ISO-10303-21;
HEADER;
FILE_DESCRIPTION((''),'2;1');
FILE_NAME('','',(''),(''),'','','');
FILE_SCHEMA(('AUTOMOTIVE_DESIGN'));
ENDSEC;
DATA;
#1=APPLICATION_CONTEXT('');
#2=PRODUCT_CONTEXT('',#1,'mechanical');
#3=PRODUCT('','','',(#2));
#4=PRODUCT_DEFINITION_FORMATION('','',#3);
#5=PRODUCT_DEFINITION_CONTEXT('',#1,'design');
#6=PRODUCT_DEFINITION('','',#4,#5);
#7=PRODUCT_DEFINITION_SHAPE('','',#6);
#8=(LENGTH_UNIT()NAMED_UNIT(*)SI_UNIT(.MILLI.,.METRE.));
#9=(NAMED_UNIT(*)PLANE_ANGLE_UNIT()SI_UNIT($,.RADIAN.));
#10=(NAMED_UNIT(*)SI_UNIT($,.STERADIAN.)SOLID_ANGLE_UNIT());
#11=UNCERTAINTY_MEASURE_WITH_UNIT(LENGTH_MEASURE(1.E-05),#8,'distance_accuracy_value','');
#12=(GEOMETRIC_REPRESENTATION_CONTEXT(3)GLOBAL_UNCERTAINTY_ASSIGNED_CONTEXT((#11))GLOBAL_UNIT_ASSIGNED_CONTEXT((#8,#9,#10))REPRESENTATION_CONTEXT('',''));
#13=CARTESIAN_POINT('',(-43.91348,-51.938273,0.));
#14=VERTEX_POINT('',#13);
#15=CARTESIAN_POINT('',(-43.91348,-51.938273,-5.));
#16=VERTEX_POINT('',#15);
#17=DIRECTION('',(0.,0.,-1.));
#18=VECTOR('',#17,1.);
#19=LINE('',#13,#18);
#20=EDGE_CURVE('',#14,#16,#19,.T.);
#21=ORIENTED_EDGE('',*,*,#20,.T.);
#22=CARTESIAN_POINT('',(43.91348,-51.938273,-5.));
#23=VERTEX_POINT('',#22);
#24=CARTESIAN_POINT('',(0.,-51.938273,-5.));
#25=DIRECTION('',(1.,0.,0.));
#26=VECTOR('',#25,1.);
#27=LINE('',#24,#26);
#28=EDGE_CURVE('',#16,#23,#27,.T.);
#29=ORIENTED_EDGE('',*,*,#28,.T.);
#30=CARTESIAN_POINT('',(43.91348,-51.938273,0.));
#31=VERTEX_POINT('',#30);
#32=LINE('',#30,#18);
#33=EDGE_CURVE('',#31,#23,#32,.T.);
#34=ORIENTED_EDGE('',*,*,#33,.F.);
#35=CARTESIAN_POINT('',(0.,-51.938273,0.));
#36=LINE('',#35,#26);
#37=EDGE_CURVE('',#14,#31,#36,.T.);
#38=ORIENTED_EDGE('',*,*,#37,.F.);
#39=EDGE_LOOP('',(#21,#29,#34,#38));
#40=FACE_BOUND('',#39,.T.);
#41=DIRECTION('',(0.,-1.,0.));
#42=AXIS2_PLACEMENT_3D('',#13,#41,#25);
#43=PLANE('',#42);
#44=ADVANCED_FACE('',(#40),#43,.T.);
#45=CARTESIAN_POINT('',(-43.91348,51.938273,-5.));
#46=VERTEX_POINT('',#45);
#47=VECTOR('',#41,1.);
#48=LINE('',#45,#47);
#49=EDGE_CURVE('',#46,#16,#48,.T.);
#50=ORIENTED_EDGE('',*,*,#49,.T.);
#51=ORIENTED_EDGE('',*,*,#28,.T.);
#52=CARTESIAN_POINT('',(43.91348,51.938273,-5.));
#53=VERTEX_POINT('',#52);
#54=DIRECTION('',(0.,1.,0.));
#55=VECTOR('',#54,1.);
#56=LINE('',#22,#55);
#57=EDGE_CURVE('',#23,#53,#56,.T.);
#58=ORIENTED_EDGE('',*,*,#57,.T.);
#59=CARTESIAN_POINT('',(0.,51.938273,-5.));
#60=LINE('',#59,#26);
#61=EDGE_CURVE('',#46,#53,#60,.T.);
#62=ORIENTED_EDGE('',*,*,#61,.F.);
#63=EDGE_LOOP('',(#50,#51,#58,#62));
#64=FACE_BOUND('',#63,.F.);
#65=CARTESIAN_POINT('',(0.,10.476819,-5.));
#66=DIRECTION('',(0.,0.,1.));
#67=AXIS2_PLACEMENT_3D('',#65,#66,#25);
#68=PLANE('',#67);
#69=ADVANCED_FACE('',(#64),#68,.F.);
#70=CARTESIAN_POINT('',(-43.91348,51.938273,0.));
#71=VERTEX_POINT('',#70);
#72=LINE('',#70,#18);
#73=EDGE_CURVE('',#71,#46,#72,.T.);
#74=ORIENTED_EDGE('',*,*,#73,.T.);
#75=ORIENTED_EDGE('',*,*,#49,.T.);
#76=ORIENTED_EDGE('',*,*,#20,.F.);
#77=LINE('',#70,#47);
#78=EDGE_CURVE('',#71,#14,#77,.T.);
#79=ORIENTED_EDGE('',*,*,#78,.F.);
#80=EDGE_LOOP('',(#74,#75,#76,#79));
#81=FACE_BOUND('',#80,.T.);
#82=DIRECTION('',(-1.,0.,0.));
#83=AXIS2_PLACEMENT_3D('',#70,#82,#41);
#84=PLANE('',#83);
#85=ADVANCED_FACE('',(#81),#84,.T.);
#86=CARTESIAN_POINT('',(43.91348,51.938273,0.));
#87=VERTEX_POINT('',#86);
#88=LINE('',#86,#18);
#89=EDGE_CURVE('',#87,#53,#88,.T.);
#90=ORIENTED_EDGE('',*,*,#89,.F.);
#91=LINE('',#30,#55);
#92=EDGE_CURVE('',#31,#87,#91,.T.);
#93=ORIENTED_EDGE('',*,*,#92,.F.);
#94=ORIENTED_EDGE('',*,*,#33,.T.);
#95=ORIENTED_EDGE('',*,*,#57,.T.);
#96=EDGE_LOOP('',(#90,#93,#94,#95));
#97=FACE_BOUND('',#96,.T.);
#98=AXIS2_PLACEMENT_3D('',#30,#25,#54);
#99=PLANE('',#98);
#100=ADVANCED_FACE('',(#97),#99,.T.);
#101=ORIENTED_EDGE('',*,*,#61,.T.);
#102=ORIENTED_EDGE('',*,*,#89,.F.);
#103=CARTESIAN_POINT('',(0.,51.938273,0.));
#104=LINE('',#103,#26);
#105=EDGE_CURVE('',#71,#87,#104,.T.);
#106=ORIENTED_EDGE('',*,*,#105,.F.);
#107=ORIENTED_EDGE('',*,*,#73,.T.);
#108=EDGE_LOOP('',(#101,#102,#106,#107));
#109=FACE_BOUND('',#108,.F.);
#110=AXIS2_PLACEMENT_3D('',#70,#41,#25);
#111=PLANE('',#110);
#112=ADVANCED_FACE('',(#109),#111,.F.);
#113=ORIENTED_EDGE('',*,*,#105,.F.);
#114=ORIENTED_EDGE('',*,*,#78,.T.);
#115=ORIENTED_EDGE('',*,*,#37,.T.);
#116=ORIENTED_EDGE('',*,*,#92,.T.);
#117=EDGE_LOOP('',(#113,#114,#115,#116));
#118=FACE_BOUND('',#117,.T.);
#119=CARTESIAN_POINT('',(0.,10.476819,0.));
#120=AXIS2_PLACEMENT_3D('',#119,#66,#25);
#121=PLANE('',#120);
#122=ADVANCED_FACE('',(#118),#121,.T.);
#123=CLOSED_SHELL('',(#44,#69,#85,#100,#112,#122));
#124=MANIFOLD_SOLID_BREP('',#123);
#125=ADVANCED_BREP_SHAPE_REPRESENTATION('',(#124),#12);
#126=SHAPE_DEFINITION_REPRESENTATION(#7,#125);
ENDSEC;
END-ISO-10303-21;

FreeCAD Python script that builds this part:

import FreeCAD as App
import Part
import Sketcher
from FreeCAD import Vector
Q = App.Units.Quantity


def add_polygon(sketch, points):
    """Adds a closed chain of lines whose ends are joined by coincident constraints."""
    first, n = sketch.GeometryCount, len(points)
    for a, b in zip(points, points[1:] + points[:1]):
        sketch.addGeometry(Part.LineSegment(App.Vector(*a, 0), App.Vector(*b, 0)), False)
    for i in range(n):
        sketch.addConstraint(Sketcher.Constraint("Coincident", first + i, 2, first + (i + 1) % n, 1))

doc = App.newDocument("Part")
body = doc.addObject("PartDesign::Body", "Body")

# Sketch on XY plane
sketch1 = body.newObject("Sketcher::SketchObject", "Sketch")
sketch1.AttachmentSupport = (doc.getObject("XY_Plane"), [""])
sketch1.MapMode = "FlatFace"
add_polygon(sketch1, [(-43.91348, 51.938273), (-43.91348, -51.938273), (43.91348, -51.938273), (43.91348, 51.938273)])  # lines 0-3
sketch1.addConstraint(Sketcher.Constraint("Vertical", 0))
sketch1.addConstraint(Sketcher.Constraint("Horizontal", 1))
sketch1.addConstraint(Sketcher.Constraint("Vertical", 2))
sketch1.addConstraint(Sketcher.Constraint("Horizontal", 3))
sketch1.addConstraint(Sketcher.Constraint("Symmetric", 0, 2, 2, 2, -1, 1))
sketch1.addConstraint(Sketcher.Constraint("DistanceX", 1, 1, 1, 2, Q("87.82696 mm")))
sketch1.addConstraint(Sketcher.Constraint("DistanceY", 0, 2, 0, 1, Q("103.876546 mm")))
pad1 = body.newObject("PartDesign::Pad", "Pad")
pad1.Profile = sketch1
pad1.Length = 5
pad1.Reversed = True

doc.recompute()
